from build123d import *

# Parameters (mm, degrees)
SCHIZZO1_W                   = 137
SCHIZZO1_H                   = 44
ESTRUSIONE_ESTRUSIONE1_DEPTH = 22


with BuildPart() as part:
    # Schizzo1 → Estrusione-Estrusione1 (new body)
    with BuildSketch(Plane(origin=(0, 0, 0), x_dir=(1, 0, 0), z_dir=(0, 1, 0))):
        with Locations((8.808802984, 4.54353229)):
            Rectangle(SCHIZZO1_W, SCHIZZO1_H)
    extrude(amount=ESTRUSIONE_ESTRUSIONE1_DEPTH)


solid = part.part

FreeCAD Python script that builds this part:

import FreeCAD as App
import Part
import Sketcher
from FreeCAD import Vector


def add_polygon(sketch, points):
    """Adds a closed chain of lines whose ends are joined by coincident constraints."""
    first, n = sketch.GeometryCount, len(points)
    for a, b in zip(points, points[1:] + points[:1]):
        sketch.addGeometry(Part.LineSegment(App.Vector(*a, 0), App.Vector(*b, 0)), False)
    for i in range(n):
        sketch.addConstraint(Sketcher.Constraint("Coincident", first + i, 2, first + (i + 1) % n, 1))

doc = App.newDocument("Part")
params = doc.addObject("Spreadsheet::Sheet", "Params")
for row, (alias, value) in enumerate([
    ("sketch1_width", "137 mm"),
    ("sketch1_height", "44 mm"),
    ("pad1_length", "22 mm"),
], start=1):
    params.set(f"A{row}", alias)
    params.set(f"B{row}", "=" + value)
    params.setAlias(f"B{row}", alias)

body = doc.addObject("PartDesign::Body", "Body")

sketch1 = body.newObject("Sketcher::SketchObject", "Sketch")
sketch1.AttachmentSupport = (doc.getObject("XZ_Plane"), [""])
sketch1.MapMode = "FlatFace"
add_polygon(sketch1, [(-59.691197, -26.543532), (-59.691197, 17.456468), (77.308803, 17.456468), (77.308803, -26.543532)])
sketch1.addConstraint([
    Sketcher.Constraint("Vertical", 0),
    Sketcher.Constraint("Horizontal", 1),
    Sketcher.Constraint("Vertical", 2),
    Sketcher.Constraint("Horizontal", 3),
    Sketcher.Constraint("DistanceX", 1, 1, 1, 2, 137.0),
    Sketcher.Constraint("DistanceY", 0, 1, 0, 2, 44.0),
    Sketcher.Constraint("DistanceX", 0, 2, -1, 1, 59.691197),
    Sketcher.Constraint("DistanceY", -1, 1, 0, 2, 17.456468),
])
sketch1.setExpression("Constraints[8]", "Params.sketch1_width")
sketch1.setExpression("Constraints[9]", "Params.sketch1_height")
pad1 = body.newObject("PartDesign::Pad", "Pad")
pad1.Profile = sketch1
pad1.setExpression("Length", "Params.pad1_length")
pad1.Reversed = True

doc.recompute()
